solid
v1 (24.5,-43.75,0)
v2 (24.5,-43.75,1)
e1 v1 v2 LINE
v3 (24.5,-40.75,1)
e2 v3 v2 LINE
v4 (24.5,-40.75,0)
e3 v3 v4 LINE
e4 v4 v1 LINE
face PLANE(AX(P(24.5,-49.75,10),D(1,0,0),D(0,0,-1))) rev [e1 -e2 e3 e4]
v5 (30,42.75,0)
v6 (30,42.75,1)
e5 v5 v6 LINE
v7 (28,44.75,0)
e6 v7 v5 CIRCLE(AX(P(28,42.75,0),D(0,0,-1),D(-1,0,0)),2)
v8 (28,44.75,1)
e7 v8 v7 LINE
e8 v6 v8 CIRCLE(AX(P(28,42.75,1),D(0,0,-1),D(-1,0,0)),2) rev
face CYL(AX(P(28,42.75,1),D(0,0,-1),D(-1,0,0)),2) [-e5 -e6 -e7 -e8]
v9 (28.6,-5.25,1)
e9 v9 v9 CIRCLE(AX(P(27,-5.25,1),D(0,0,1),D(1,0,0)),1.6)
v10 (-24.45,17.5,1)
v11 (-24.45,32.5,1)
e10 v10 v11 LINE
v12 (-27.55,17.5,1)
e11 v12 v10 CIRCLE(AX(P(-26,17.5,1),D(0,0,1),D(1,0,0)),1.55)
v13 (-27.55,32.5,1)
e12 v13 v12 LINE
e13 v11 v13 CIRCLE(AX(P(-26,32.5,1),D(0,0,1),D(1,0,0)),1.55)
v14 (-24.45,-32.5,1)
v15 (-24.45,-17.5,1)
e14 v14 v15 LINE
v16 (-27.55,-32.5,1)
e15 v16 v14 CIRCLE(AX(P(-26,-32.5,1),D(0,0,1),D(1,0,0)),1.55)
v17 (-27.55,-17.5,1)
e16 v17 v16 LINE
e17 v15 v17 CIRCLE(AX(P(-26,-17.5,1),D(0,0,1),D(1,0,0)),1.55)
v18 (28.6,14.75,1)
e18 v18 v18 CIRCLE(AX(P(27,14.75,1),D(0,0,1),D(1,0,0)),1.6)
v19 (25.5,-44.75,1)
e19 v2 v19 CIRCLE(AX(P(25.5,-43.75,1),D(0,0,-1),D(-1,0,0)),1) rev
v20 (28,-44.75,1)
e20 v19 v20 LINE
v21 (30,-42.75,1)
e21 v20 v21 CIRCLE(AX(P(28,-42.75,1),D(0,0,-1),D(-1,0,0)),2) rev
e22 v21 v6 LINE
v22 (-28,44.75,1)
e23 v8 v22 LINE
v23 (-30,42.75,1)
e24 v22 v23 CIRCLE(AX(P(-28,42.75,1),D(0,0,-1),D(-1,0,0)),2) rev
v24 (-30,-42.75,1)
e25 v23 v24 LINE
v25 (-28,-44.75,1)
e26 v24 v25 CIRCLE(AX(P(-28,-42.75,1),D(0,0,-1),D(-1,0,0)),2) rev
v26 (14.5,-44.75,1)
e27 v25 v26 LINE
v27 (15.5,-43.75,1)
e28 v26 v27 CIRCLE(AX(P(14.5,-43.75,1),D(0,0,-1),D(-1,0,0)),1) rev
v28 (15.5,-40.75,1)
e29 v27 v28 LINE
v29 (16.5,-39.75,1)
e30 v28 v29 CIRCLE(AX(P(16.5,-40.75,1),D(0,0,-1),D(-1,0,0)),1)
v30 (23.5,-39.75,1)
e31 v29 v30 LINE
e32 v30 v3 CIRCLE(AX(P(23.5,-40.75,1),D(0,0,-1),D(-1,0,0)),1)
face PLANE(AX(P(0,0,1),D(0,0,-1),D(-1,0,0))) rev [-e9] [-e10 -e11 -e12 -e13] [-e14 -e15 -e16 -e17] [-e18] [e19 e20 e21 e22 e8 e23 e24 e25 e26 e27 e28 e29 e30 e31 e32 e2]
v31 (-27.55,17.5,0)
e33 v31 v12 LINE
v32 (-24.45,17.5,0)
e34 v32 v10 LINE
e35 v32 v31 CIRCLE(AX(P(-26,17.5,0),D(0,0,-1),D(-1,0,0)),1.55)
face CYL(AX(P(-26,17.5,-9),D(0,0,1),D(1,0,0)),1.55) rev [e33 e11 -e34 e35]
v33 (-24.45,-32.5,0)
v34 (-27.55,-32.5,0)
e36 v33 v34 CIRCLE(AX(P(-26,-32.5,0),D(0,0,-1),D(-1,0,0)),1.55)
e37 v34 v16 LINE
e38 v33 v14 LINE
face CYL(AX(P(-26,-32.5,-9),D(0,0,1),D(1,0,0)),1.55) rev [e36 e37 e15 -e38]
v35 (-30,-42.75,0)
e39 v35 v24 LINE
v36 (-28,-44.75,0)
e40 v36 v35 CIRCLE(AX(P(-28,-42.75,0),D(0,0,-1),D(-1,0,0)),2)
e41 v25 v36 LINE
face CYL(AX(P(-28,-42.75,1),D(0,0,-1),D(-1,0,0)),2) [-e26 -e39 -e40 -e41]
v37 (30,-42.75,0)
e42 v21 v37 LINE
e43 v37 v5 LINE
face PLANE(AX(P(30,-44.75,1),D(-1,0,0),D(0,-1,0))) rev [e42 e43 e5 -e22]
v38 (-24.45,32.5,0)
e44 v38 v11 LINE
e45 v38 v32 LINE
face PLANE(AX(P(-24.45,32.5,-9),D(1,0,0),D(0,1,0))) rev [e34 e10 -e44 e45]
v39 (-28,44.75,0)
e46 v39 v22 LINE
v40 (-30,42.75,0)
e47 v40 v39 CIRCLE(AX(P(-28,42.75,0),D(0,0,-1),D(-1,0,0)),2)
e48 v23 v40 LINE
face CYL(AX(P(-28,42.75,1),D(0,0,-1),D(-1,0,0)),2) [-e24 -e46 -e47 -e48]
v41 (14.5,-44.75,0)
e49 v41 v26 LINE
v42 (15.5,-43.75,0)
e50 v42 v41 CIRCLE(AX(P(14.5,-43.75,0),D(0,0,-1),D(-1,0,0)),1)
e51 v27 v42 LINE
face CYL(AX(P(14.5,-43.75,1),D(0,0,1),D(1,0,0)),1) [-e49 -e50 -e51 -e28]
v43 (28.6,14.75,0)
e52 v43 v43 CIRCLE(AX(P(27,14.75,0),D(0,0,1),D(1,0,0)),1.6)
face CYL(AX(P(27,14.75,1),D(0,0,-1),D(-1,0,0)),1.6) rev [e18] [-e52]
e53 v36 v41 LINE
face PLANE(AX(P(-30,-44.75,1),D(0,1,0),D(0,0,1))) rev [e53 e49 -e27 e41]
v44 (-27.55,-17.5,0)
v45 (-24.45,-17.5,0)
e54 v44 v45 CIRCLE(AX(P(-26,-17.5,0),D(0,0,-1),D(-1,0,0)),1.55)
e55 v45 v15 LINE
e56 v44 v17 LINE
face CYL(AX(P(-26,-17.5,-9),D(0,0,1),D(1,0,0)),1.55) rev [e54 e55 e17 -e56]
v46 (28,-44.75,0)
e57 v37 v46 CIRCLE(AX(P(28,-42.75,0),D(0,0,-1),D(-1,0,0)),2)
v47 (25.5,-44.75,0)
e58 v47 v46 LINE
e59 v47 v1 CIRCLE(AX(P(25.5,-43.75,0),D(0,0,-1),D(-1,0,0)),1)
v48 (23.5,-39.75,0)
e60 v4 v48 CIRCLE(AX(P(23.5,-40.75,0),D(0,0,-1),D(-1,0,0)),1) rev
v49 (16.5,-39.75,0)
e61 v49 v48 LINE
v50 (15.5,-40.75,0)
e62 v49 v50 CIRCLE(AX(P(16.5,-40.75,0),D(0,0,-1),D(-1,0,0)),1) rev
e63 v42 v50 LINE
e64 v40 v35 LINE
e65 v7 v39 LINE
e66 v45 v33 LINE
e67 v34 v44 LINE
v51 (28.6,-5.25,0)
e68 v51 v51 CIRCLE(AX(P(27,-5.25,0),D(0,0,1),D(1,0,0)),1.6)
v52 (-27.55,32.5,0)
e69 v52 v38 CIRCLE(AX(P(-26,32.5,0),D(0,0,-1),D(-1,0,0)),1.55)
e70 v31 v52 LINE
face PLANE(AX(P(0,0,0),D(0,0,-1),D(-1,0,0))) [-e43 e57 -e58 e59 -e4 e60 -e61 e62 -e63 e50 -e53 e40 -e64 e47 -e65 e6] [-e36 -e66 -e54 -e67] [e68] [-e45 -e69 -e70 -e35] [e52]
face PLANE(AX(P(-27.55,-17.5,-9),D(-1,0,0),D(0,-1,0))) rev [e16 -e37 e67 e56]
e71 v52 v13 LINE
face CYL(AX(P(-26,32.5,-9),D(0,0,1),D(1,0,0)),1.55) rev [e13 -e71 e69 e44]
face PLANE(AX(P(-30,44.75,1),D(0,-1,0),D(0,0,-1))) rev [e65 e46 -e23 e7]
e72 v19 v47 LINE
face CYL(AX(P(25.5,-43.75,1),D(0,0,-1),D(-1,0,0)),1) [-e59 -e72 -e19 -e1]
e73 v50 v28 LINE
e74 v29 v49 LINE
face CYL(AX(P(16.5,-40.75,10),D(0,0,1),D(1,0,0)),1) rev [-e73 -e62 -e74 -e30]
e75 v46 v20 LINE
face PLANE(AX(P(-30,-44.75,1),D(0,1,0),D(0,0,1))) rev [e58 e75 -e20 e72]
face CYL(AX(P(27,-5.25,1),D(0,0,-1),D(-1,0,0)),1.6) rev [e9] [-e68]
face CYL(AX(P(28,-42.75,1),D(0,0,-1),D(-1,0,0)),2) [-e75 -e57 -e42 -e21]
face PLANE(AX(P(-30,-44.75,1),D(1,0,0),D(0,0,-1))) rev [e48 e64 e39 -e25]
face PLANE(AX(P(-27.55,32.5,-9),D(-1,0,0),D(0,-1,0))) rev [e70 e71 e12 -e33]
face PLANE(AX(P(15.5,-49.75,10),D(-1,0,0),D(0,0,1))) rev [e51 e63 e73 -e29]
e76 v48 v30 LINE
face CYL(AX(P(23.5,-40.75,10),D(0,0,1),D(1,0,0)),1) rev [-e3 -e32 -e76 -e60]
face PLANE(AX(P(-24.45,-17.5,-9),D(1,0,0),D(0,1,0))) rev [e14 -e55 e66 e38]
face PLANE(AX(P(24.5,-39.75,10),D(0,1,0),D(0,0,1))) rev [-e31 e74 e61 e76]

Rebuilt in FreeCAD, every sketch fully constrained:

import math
import FreeCAD as App
import Part
import Sketcher


def edges_at(feature, points):
    """Names of the edges that pass closest to the given points."""
    edges = feature.Shape.Edges
    near = lambda p: min(range(len(edges)), key=lambda i: edges[i].distToShape(Part.Vertex(*p))[0])
    return sorted({f"Edge{near(p) + 1}" for p in points})


def add_polygon(sketch, points):
    """Adds a closed chain of lines whose ends are joined by coincident constraints."""
    first, n = sketch.GeometryCount, len(points)
    for a, b in zip(points, points[1:] + points[:1]):
        sketch.addGeometry(Part.LineSegment(App.Vector(*a, 0), App.Vector(*b, 0)), False)
    for i in range(n):
        sketch.addConstraint(Sketcher.Constraint("Coincident", first + i, 2, first + (i + 1) % n, 1))

doc = App.newDocument("Part")
body = doc.addObject("PartDesign::Body", "Body")

# Sketch on XY plane
sketch1 = doc.addObject("Sketcher::SketchObject", "Sketch")
body.addObject(sketch1)
sketch1.AttachmentSupport = (doc.XY_Plane, [""])
sketch1.MapMode = "FlatFace"
add_polygon(sketch1, [(-30, 44.8), (-30, -44.8), (30, -44.8), (30, 44.8)])  # lines 0-3
sketch1.addGeometry(Part.Circle(App.Vector(27, -5.2, 0), App.Vector(0, 0, 1), 1.6), False)  # 4
sketch1.addGeometry(Part.Circle(App.Vector(27, 14.8, 0), App.Vector(0, 0, 1), 1.6), False)  # 5
sketch1.addConstraint(Sketcher.Constraint("Vertical", 0))
sketch1.addConstraint(Sketcher.Constraint("Horizontal", 1))
sketch1.addConstraint(Sketcher.Constraint("Vertical", 2))
sketch1.addConstraint(Sketcher.Constraint("Horizontal", 3))
sketch1.addConstraint(Sketcher.Constraint("Equal", 4, 5))
sketch1.addConstraint(Sketcher.Constraint("Symmetric", 0, 2, 2, 2, -1, 1))
sketch1.addConstraint(Sketcher.Constraint("Vertical", 4, 3, 5, 3))
sketch1.addConstraint(Sketcher.Constraint("Diameter", 4, 3.2))
sketch1.addConstraint(Sketcher.Constraint("DistanceX", 1, 1, 1, 2, 60.0))
sketch1.addConstraint(Sketcher.Constraint("DistanceY", 0, 2, 0, 1, 89.5))
sketch1.addConstraint(Sketcher.Constraint("DistanceX", -1, 1, 4, 3, 27.0))
sketch1.addConstraint(Sketcher.Constraint("DistanceY", 4, 3, 5, 3, 20.0))
sketch1.addConstraint(Sketcher.Constraint("DistanceY", 5, 3, 2, 2, 30.0))
pad1 = doc.addObject("PartDesign::Pad", "Pad")
body.addObject(pad1)
pad1.Profile = sketch1
pad1.Length = 1

# Sketch on XY plane
sketch2 = doc.addObject("Sketcher::SketchObject", "Sketch001")
body.addObject(sketch2)
sketch2.AttachmentSupport = (doc.XY_Plane, [""])
sketch2.MapMode = "FlatFace"
sketch2.AttachmentOffset = App.Placement(App.Vector(0, 0, 1), App.Rotation())
sketch2.addGeometry(Part.LineSegment(App.Vector(-24.4, 17.5, 0), App.Vector(-24.4, 32.5, 0)), False)
sketch2.addGeometry(Part.ArcOfCircle(Part.Circle(App.Vector(-26, 32.5, 0), App.Vector(0, 0, 1), 1.6), math.radians(0), math.radians(180)), False)
sketch2.addGeometry(Part.LineSegment(App.Vector(-27.6, 32.5, 0), App.Vector(-27.6, 17.5, 0)), False)
sketch2.addGeometry(Part.ArcOfCircle(Part.Circle(App.Vector(-26, 17.5, 0), App.Vector(0, 0, 1), 1.6), math.radians(180), math.radians(360)), False)
sketch2.addGeometry(Part.LineSegment(App.Vector(-24.4, -32.5, 0), App.Vector(-24.4, -17.5, 0)), False)
sketch2.addGeometry(Part.ArcOfCircle(Part.Circle(App.Vector(-26, -17.5, 0), App.Vector(0, 0, 1), 1.6), math.radians(0), math.radians(180)), False)
sketch2.addGeometry(Part.LineSegment(App.Vector(-27.6, -17.5, 0), App.Vector(-27.6, -32.5, 0)), False)
sketch2.addGeometry(Part.ArcOfCircle(Part.Circle(App.Vector(-26, -32.5, 0), App.Vector(0, 0, 1), 1.6), math.radians(180), math.radians(360)), False)
sketch2.addConstraint(Sketcher.Constraint("Tangent", 0, 2, 1, 1))
sketch2.addConstraint(Sketcher.Constraint("Tangent", 1, 2, 2, 1))
sketch2.addConstraint(Sketcher.Constraint("Tangent", 2, 2, 3, 1))
sketch2.addConstraint(Sketcher.Constraint("Tangent", 3, 2, 0, 1))
sketch2.addConstraint(Sketcher.Constraint("Tangent", 4, 2, 5, 1))
sketch2.addConstraint(Sketcher.Constraint("Tangent", 5, 2, 6, 1))
sketch2.addConstraint(Sketcher.Constraint("Tangent", 6, 2, 7, 1))
sketch2.addConstraint(Sketcher.Constraint("Tangent", 7, 2, 4, 1))
sketch2.addConstraint(Sketcher.Constraint("Vertical", 0))
sketch2.addConstraint(Sketcher.Constraint("Vertical", 2))
sketch2.addConstraint(Sketcher.Constraint("Vertical", 4))
sketch2.addConstraint(Sketcher.Constraint("Vertical", 6))
sketch2.addConstraint(Sketcher.Constraint("Equal", 3, 5))
sketch2.addConstraint(Sketcher.Constraint("Symmetric", 3, 3, 5, 3, -1))
sketch2.addConstraint(Sketcher.Constraint("Equal", 2, 4))
sketch2.addConstraint(Sketcher.Constraint("DistanceY", 0, 1, 0, 2, 15.0))
sketch2.addConstraint(Sketcher.Constraint("Radius", 1, 1.55))
sketch2.addConstraint(Sketcher.Constraint("DistanceX", 1, 3, -1, 1, 26.0))
sketch2.addConstraint(Sketcher.Constraint("DistanceY", 5, 3, 3, 3, 35.0))
pocket1 = doc.addObject("PartDesign::Pocket", "Pocket")
body.addObject(pocket1)
pocket1.Profile = sketch2
pocket1.Length = 10
doc.recompute()

fillet = doc.addObject("PartDesign::Fillet", "Fillet")
body.addObject(fillet)
fillet.Base = (pocket1, edges_at(pocket1, [
    (30, -44.75, 0.5),
    (-30, -44.75, 0.5),
    (-30, 44.75, 0.5),
    (30, 44.75, 0.5),
]))
fillet.Radius = 2

# Sketch on XY plane
sketch3 = doc.addObject("Sketcher::SketchObject", "Sketch002")
body.addObject(sketch3)
sketch3.AttachmentSupport = (doc.XY_Plane, [""])
sketch3.MapMode = "FlatFace"
add_polygon(sketch3, [(24, -40), (24, -50), (16, -50), (16, -40)])  # lines 0-3
sketch3.addConstraint(Sketcher.Constraint("Vertical", 0))
sketch3.addConstraint(Sketcher.Constraint("Horizontal", 1))
sketch3.addConstraint(Sketcher.Constraint("Vertical", 2))
sketch3.addConstraint(Sketcher.Constraint("Horizontal", 3))
sketch3.addConstraint(Sketcher.Constraint("DistanceX", 1, 2, 1, 1, 9.0))
sketch3.addConstraint(Sketcher.Constraint("DistanceY", 0, 2, 0, 1, 10.0))
sketch3.addConstraint(Sketcher.Constraint("DistanceX", -1, 1, 0, 2, 24.5))
sketch3.addConstraint(Sketcher.Constraint("DistanceY", 0, 2, -1, 1, 49.75))
pocket2 = doc.addObject("PartDesign::Pocket", "Pocket001")
body.addObject(pocket2)
pocket2.Profile = sketch3
pocket2.Length = 10
pocket2.Reversed = True
doc.recompute()

fillet2 = doc.addObject("PartDesign::Fillet", "Fillet001")
body.addObject(fillet2)
fillet2.Base = (pocket2, edges_at(pocket2, [
    (24.5, -44.75, 0.5),
    (15.5, -44.75, 0.5),
    (24.5, -39.75, 0.5),
    (15.5, -39.75, 0.5),
]))
fillet2.Radius = 1

doc.recompute()
